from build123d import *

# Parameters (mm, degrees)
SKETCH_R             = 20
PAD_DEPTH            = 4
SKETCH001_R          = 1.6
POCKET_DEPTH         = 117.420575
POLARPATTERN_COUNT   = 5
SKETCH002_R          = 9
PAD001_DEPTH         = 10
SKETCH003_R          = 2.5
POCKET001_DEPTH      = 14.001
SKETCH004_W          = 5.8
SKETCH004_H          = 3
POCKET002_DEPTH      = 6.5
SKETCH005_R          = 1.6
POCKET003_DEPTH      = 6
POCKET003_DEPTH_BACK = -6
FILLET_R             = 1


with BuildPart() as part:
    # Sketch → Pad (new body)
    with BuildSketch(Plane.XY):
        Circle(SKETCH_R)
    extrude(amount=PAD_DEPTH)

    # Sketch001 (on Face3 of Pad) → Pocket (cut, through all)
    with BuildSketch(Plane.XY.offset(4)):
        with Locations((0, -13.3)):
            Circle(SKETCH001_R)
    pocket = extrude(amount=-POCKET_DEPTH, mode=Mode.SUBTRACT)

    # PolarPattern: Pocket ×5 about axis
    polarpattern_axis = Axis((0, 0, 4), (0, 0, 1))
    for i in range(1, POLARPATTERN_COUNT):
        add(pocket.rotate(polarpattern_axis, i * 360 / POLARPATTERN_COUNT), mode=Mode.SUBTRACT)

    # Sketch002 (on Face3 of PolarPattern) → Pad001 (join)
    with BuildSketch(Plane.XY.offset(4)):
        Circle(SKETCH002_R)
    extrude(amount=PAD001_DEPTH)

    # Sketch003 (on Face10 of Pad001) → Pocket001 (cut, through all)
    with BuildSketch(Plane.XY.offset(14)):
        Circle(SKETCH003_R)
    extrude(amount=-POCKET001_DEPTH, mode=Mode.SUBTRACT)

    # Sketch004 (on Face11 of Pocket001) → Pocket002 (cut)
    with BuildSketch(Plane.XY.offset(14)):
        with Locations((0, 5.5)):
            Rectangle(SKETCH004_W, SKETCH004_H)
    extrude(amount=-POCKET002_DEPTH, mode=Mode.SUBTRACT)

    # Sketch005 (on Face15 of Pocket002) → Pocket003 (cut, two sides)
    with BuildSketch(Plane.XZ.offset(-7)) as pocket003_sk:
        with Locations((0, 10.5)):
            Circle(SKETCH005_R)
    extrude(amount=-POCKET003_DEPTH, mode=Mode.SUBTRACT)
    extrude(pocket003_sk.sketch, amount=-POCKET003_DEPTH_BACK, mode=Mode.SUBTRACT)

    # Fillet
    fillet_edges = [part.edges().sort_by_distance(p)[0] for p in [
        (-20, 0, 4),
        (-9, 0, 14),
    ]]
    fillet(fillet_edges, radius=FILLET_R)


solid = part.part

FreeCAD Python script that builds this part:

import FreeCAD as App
import Part
import Sketcher

V = App.Vector


def edges_at(feature, points):
    """Names of the edges that pass closest to the given points."""
    edges = feature.Shape.Edges
    near = lambda p: min(range(len(edges)), key=lambda i: edges[i].distToShape(Part.Vertex(*p))[0])
    return sorted({f"Edge{near(p) + 1}" for p in points})


def add_polygon(sketch, points):
    """Adds a closed chain of lines whose ends are joined by coincident constraints."""
    first, n = sketch.GeometryCount, len(points)
    for a, b in zip(points, points[1:] + points[:1]):
        sketch.addGeometry(Part.LineSegment(App.Vector(*a, 0), App.Vector(*b, 0)), False)
    for i in range(n):
        sketch.addConstraint(Sketcher.Constraint("Coincident", first + i, 2, first + (i + 1) % n, 1))

doc = App.newDocument("Part")
body = doc.addObject("PartDesign::Body", "Body")

# Sketch on XY plane
sketch1 = body.newObject("Sketcher::SketchObject", "Sketch")
sketch1.AttachmentSupport = (doc.getObject("XY_Plane"), [""])
sketch1.MapMode = "FlatFace"
sketch1.addGeometry(Part.Circle(V(0, 0, 0), V(0, 0, 1), 20), False)
sketch1.addConstraint([
    Sketcher.Constraint("Coincident", 0, 3, -1, 1),
    Sketcher.Constraint("Diameter", 0, 40.0),
])
pad1 = body.newObject("PartDesign::Pad", "Pad")
pad1.Profile = sketch1
pad1.Length = 4

# Sketch on XY plane
sketch2 = body.newObject("Sketcher::SketchObject", "Sketch001")
sketch2.AttachmentSupport = (doc.getObject("XY_Plane"), [""])
sketch2.MapMode = "FlatFace"
sketch2.AttachmentOffset = App.Placement(V(0, 0, 4), App.Rotation())
sketch2.addGeometry(Part.Circle(V(0, -13.3, 0), V(0, 0, 1), 1.6), False)
sketch2.addConstraint([
    Sketcher.Constraint("PointOnObject", 0, 3, -2),
    Sketcher.Constraint("Diameter", 0, 3.2),
    Sketcher.Constraint("DistanceY", 0, 3, -1, 1, 13.3),
])
pocket1 = body.newObject("PartDesign::Pocket", "Pocket")
pocket1.Profile = sketch2
pocket1.Type = "ThroughAll"
doc.recompute()

polarpattern = body.newObject("PartDesign::PolarPattern", "PolarPattern")
polarpattern.Originals = [pocket1]
polarpattern.Axis = (doc.getObject("Z_Axis"), [""])
polarpattern.Angle = 360
polarpattern.Occurrences = 5
body.Tip = polarpattern

# Sketch on XY plane
sketch3 = body.newObject("Sketcher::SketchObject", "Sketch002")
sketch3.AttachmentSupport = (doc.getObject("XY_Plane"), [""])
sketch3.MapMode = "FlatFace"
sketch3.AttachmentOffset = App.Placement(V(0, 0, 4), App.Rotation())
sketch3.addGeometry(Part.Circle(V(0, 0, 0), V(0, 0, 1), 9), False)
sketch3.addConstraint([
    Sketcher.Constraint("Coincident", 0, 3, -1, 1),
    Sketcher.Constraint("Diameter", 0, 18.0),
])
pad2 = body.newObject("PartDesign::Pad", "Pad001")
pad2.Profile = sketch3
pad2.Length = 10

# Sketch on XY plane
sketch4 = body.newObject("Sketcher::SketchObject", "Sketch003")
sketch4.AttachmentSupport = (doc.getObject("XY_Plane"), [""])
sketch4.MapMode = "FlatFace"
sketch4.AttachmentOffset = App.Placement(V(0, 0, 14), App.Rotation())
sketch4.addGeometry(Part.Circle(V(0, 0, 0), V(0, 0, 1), 2.5), False)
sketch4.addConstraint([
    Sketcher.Constraint("Coincident", 0, 3, -1, 1),
    Sketcher.Constraint("Diameter", 0, 5.0),
])
pocket2 = body.newObject("PartDesign::Pocket", "Pocket001")
pocket2.Profile = sketch4
pocket2.Type = "ThroughAll"

# Sketch on XY plane
sketch5 = body.newObject("Sketcher::SketchObject", "Sketch004")
sketch5.AttachmentSupport = (doc.getObject("XY_Plane"), [""])
sketch5.MapMode = "FlatFace"
sketch5.AttachmentOffset = App.Placement(V(0, 0, 14), App.Rotation())
add_polygon(sketch5, [(-2.9, 7), (-2.9, 4), (2.9, 4), (2.9, 7)])  # lines 0-3
sketch5.addConstraint([
    Sketcher.Constraint("Vertical", 0),
    Sketcher.Constraint("Horizontal", 1),
    Sketcher.Constraint("Vertical", 2),
    Sketcher.Constraint("Horizontal", 3),
    Sketcher.Constraint("DistanceY", 0, 2, 0, 1, 3.0),
    Sketcher.Constraint("DistanceX", 1, 1, 1, 2, 5.8),
    Sketcher.Constraint("DistanceY", -1, 1, 0, 2, 4.0),
    Sketcher.Constraint("DistanceX", 0, 2, -1, 1, 2.9),
])
pocket3 = body.newObject("PartDesign::Pocket", "Pocket002")
pocket3.Profile = sketch5
pocket3.Length = 6.5

# Sketch on XZ plane
sketch6 = body.newObject("Sketcher::SketchObject", "Sketch005")
sketch6.AttachmentSupport = (doc.getObject("XZ_Plane"), [""])
sketch6.MapMode = "FlatFace"
sketch6.AttachmentOffset = App.Placement(V(0, 0, -7), App.Rotation())
sketch6.addGeometry(Part.Circle(V(0, 10.5, 0), V(0, 0, 1), 1.6), False)
sketch6.addConstraint([
    Sketcher.Constraint("PointOnObject", 0, 3, -2),
    Sketcher.Constraint("Diameter", 0, 3.2),
    Sketcher.Constraint("DistanceY", -1, 1, 0, 3, 10.5),
])
pocket4 = body.newObject("PartDesign::Pocket", "Pocket003")
pocket4.Profile = sketch6
pocket4.Type = "TwoLengths"
pocket4.Length = 6
pocket4.Length2 = 6
doc.recompute()

fillet = body.newObject("PartDesign::Fillet", "Fillet")
fillet.Base = (pocket4, edges_at(pocket4, [(-20, 0, 4), (-9, 0, 14)]))
fillet.Radius = 1

doc.recompute()
